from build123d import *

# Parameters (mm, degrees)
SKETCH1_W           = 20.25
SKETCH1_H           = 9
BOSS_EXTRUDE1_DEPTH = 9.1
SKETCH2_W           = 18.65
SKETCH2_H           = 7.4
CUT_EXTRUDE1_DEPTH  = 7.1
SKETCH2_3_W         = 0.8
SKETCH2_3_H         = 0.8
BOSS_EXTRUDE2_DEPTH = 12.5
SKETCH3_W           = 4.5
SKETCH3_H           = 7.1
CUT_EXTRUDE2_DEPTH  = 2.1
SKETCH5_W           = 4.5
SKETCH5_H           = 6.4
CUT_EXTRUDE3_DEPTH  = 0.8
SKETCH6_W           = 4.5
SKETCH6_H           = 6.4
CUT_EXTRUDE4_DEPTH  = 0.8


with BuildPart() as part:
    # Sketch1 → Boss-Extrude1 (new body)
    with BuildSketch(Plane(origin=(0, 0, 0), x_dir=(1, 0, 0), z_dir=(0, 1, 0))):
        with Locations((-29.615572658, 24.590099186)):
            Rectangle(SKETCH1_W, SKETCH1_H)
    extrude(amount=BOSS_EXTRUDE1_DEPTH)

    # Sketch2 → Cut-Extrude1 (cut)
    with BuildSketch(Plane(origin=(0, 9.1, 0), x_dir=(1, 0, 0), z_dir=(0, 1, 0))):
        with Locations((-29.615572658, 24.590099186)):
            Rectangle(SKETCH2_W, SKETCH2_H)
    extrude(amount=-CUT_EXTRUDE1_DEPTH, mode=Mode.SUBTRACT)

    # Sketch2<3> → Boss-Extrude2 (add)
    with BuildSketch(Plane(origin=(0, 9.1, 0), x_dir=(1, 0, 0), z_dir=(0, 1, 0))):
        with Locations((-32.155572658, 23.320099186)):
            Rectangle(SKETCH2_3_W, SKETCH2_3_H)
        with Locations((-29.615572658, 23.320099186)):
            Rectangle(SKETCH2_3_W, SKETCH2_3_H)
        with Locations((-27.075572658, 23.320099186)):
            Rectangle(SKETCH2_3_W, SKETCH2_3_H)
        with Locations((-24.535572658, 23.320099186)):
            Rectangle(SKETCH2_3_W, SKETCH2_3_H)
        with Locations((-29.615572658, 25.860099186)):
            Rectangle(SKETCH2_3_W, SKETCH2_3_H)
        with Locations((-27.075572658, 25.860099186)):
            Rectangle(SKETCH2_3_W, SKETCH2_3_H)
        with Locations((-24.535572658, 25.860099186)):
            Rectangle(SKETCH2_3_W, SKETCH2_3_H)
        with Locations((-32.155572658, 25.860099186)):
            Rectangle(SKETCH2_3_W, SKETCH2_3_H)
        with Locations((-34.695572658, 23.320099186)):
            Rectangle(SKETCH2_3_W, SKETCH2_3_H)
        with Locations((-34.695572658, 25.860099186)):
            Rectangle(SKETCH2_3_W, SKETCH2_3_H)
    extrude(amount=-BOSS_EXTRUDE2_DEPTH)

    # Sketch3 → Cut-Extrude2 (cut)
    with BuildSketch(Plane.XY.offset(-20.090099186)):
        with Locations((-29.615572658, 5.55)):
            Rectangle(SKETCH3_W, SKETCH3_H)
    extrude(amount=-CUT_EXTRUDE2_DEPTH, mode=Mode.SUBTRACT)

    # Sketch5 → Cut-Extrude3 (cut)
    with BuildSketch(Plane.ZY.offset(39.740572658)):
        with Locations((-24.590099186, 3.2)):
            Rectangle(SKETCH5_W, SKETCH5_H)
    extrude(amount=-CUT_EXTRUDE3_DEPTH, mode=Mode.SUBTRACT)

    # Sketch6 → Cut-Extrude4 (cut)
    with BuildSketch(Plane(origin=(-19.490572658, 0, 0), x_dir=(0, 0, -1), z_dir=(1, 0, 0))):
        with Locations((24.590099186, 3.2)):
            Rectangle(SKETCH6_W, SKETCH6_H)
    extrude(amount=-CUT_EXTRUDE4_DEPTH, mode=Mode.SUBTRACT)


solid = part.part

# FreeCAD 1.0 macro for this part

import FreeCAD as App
import Part
import Sketcher
from FreeCAD import Vector
Q = App.Units.Quantity


def add_polygon(sketch, points):
    """Adds a closed chain of lines whose ends are joined by coincident constraints."""
    first, n = sketch.GeometryCount, len(points)
    for a, b in zip(points, points[1:] + points[:1]):
        sketch.addGeometry(Part.LineSegment(App.Vector(*a, 0), App.Vector(*b, 0)), False)
    for i in range(n):
        sketch.addConstraint(Sketcher.Constraint("Coincident", first + i, 2, first + (i + 1) % n, 1))

doc = App.newDocument("Part")
body = doc.addObject("PartDesign::Body", "Body")

# Sketch on XZ plane
sketch1 = doc.addObject("Sketcher::SketchObject", "Sketch")
body.addObject(sketch1)
sketch1.AttachmentSupport = (doc.XZ_Plane, [""])
sketch1.MapMode = "FlatFace"
add_polygon(sketch1, [(-40, -29), (-40, -20), (-19, -20), (-19, -29)])  # lines 0-3
sketch1.addConstraint([
    Sketcher.Constraint("Vertical", 0),
    Sketcher.Constraint("Horizontal", 1),
    Sketcher.Constraint("Vertical", 2),
    Sketcher.Constraint("Horizontal", 3),
    Sketcher.Constraint("DistanceY", 0, 1, 0, 2, Q("9 mm")),
    Sketcher.Constraint("DistanceX", 1, 1, 1, 2, Q("20.25 mm")),
    Sketcher.Constraint("DistanceY", 0, 2, -1, 1, Q("20.090099 mm")),
    Sketcher.Constraint("DistanceX", 0, 2, -1, 1, Q("39.740573 mm")),
])
pad1 = doc.addObject("PartDesign::Pad", "Pad")
body.addObject(pad1)
pad1.Profile = sketch1
pad1.Length = 9.1
pad1.Reversed = True

# Sketch on XZ plane
sketch2 = doc.addObject("Sketcher::SketchObject", "Sketch001")
body.addObject(sketch2)
sketch2.AttachmentSupport = (doc.XZ_Plane, [""])
sketch2.MapMode = "FlatFace"
sketch2.AttachmentOffset = App.Placement(Vector(0, 0, -9.1), App.Rotation())
add_polygon(sketch2, [(-39, -28), (-39, -21), (-20, -21), (-20, -28)])  # lines 0-3
sketch2.addConstraint([
    Sketcher.Constraint("Vertical", 0),
    Sketcher.Constraint("Horizontal", 1),
    Sketcher.Constraint("Vertical", 2),
    Sketcher.Constraint("Horizontal", 3),
    Sketcher.Constraint("DistanceY", 0, 1, 0, 2, Q("7.4 mm")),
    Sketcher.Constraint("DistanceX", 1, 1, 1, 2, Q("18.65 mm")),
    Sketcher.Constraint("DistanceY", 0, 2, -1, 1, Q("20.890099 mm")),
    Sketcher.Constraint("DistanceX", 0, 2, -1, 1, Q("38.940573 mm")),
])
pocket1 = doc.addObject("PartDesign::Pocket", "Pocket")
body.addObject(pocket1)
pocket1.Profile = sketch2
pocket1.Length = 7.1
pocket1.Reversed = True

# Sketch on XZ plane
sketch3 = doc.addObject("Sketcher::SketchObject", "Sketch002")
body.addObject(sketch3)
sketch3.AttachmentSupport = (doc.XZ_Plane, [""])
sketch3.MapMode = "FlatFace"
sketch3.AttachmentOffset = App.Placement(Vector(0, 0, -9.1), App.Rotation())
add_polygon(sketch3, [(-32.6, -23.7), (-32.6, -22.9), (-31.8, -22.9), (-31.8, -23.7)])  # lines 0-3
add_polygon(sketch3, [(-30, -23.7), (-30, -22.9), (-29.2, -22.9), (-29.2, -23.7)])  # lines 4-7
add_polygon(sketch3, [(-27.5, -23.7), (-27.5, -22.9), (-26.7, -22.9), (-26.7, -23.7)])  # lines 8-11
add_polygon(sketch3, [(-24.9, -23.7), (-24.9, -22.9), (-24.1, -22.9), (-24.1, -23.7)])  # lines 12-15
add_polygon(sketch3, [(-30, -26.3), (-30, -25.5), (-29.2, -25.5), (-29.2, -26.3)])  # lines 16-19
add_polygon(sketch3, [(-27.5, -26.3), (-27.5, -25.5), (-26.7, -25.5), (-26.7, -26.3)])  # lines 20-23
add_polygon(sketch3, [(-24.9, -26.3), (-24.9, -25.5), (-24.1, -25.5), (-24.1, -26.3)])  # lines 24-27
add_polygon(sketch3, [(-32.6, -26.3), (-32.6, -25.5), (-31.8, -25.5), (-31.8, -26.3)])  # lines 28-31
add_polygon(sketch3, [(-35.1, -23.7), (-35.1, -22.9), (-34.3, -22.9), (-34.3, -23.7)])  # lines 32-35
add_polygon(sketch3, [(-35.1, -26.3), (-35.1, -25.5), (-34.3, -25.5), (-34.3, -26.3)])  # lines 36-39
sketch3.addConstraint([
    Sketcher.Constraint("Vertical", 0),
    Sketcher.Constraint("Horizontal", 1),
    Sketcher.Constraint("Vertical", 2),
    Sketcher.Constraint("Horizontal", 3),
    Sketcher.Constraint("Vertical", 4),
    Sketcher.Constraint("Horizontal", 5),
    Sketcher.Constraint("Vertical", 6),
    Sketcher.Constraint("Horizontal", 7),
    Sketcher.Constraint("Vertical", 8),
    Sketcher.Constraint("Horizontal", 9),
    Sketcher.Constraint("Vertical", 10),
    Sketcher.Constraint("Horizontal", 11),
    Sketcher.Constraint("Vertical", 12),
    Sketcher.Constraint("Horizontal", 13),
    Sketcher.Constraint("Vertical", 14),
    Sketcher.Constraint("Horizontal", 15),
    Sketcher.Constraint("Vertical", 16),
    Sketcher.Constraint("Horizontal", 17),
    Sketcher.Constraint("Vertical", 18),
    Sketcher.Constraint("Horizontal", 19),
    Sketcher.Constraint("Vertical", 20),
    Sketcher.Constraint("Horizontal", 21),
    Sketcher.Constraint("Vertical", 22),
    Sketcher.Constraint("Horizontal", 23),
    Sketcher.Constraint("Vertical", 24),
    Sketcher.Constraint("Horizontal", 25),
    Sketcher.Constraint("Vertical", 26),
    Sketcher.Constraint("Horizontal", 27),
    Sketcher.Constraint("Vertical", 28),
    Sketcher.Constraint("Horizontal", 29),
    Sketcher.Constraint("Vertical", 30),
    Sketcher.Constraint("Horizontal", 31),
    Sketcher.Constraint("Vertical", 32),
    Sketcher.Constraint("Horizontal", 33),
    Sketcher.Constraint("Vertical", 34),
    Sketcher.Constraint("Horizontal", 35),
    Sketcher.Constraint("Vertical", 36),
    Sketcher.Constraint("Horizontal", 37),
    Sketcher.Constraint("Vertical", 38),
    Sketcher.Constraint("Horizontal", 39),
    Sketcher.Constraint("Horizontal", 1, 2, 4, 2),
    Sketcher.Constraint("Horizontal", 3, 2, 6, 2),
    Sketcher.Constraint("Horizontal", 5, 2, 8, 2),
    Sketcher.Constraint("Horizontal", 7, 2, 10, 2),
    Sketcher.Constraint("Horizontal", 9, 2, 12, 2),
    Sketcher.Constraint("Horizontal", 11, 2, 14, 2),
    Sketcher.Constraint("Horizontal", 17, 2, 20, 2),
    Sketcher.Constraint("Horizontal", 19, 2, 22, 2),
    Sketcher.Constraint("Horizontal", 21, 2, 24, 2),
    Sketcher.Constraint("Horizontal", 23, 2, 26, 2),
    Sketcher.Constraint("Horizontal", 25, 2, 28, 2),
    Sketcher.Constraint("Horizontal", 27, 2, 30, 2),
    Sketcher.Constraint("Horizontal", 13, 2, 32, 2),
    Sketcher.Constraint("Horizontal", 15, 2, 34, 2),
    Sketcher.Constraint("Horizontal", 29, 2, 36, 2),
    Sketcher.Constraint("Horizontal", 31, 2, 38, 2),
    Sketcher.Constraint("Vertical", 7, 2, 16, 2),
    Sketcher.Constraint("Vertical", 6, 2, 17, 2),
    Sketcher.Constraint("Vertical", 11, 2, 20, 2),
    Sketcher.Constraint("Vertical", 10, 2, 21, 2),
    Sketcher.Constraint("Vertical", 15, 2, 24, 2),
    Sketcher.Constraint("Vertical", 14, 2, 25, 2),
    Sketcher.Constraint("Vertical", 3, 2, 28, 2),
    Sketcher.Constraint("Vertical", 2, 2, 29, 2),
    Sketcher.Constraint("Vertical", 35, 2, 36, 2),
    Sketcher.Constraint("Vertical", 34, 2, 37, 2),
    Sketcher.Constraint("Equal", 3, 5),
    Sketcher.Constraint("Equal", 7, 9),
    Sketcher.Constraint("Equal", 11, 13),
    Sketcher.Constraint("Equal", 31, 33),
    Sketcher.Constraint("Equal", 39, 0),
    Sketcher.Constraint("Equal", 14, 16),
    Sketcher.Constraint("DistanceX", 1, 1, 1, 2, Q("0.8 mm")),
    Sketcher.Constraint("DistanceX", 1, 2, 4, 2, Q("1.74 mm")),
    Sketcher.Constraint("DistanceX", 5, 2, 8, 2, Q("1.74 mm")),
    Sketcher.Constraint("DistanceX", 9, 2, 12, 2, Q("1.74 mm")),
    Sketcher.Constraint("DistanceY", 16, 2, 7, 2, Q("1.74 mm")),
    Sketcher.Constraint("DistanceX", 32, 2, 0, 2, Q("2.54 mm")),
    Sketcher.Constraint("DistanceY", 0, 2, -1, 1, Q("22.920099 mm")),
    Sketcher.Constraint("DistanceX", 0, 2, -1, 1, Q("32.555573 mm")),
])
pad2 = doc.addObject("PartDesign::Pad", "Pad001")
body.addObject(pad2)
pad2.Profile = sketch3
pad2.Length = 12.5

# Sketch on XY plane
sketch4 = doc.addObject("Sketcher::SketchObject", "Sketch003")
body.addObject(sketch4)
sketch4.AttachmentSupport = (doc.XY_Plane, [""])
sketch4.MapMode = "FlatFace"
sketch4.AttachmentOffset = App.Placement(Vector(0, 0, -20.090099), App.Rotation())
add_polygon(sketch4, [(-31.9, 9.1), (-31.9, 2), (-27.4, 2), (-27.4, 9.1)])  # lines 0-3
sketch4.addConstraint([
    Sketcher.Constraint("Vertical", 0),
    Sketcher.Constraint("Horizontal", 1),
    Sketcher.Constraint("Vertical", 2),
    Sketcher.Constraint("Horizontal", 3),
    Sketcher.Constraint("DistanceX", 1, 1, 1, 2, Q("4.5 mm")),
    Sketcher.Constraint("DistanceY", 0, 2, 0, 1, Q("7.1 mm")),
    Sketcher.Constraint("DistanceY", -1, 1, 0, 2, Q("2 mm")),
    Sketcher.Constraint("DistanceX", 0, 2, -1, 1, Q("31.865573 mm")),
])
pocket2 = doc.addObject("PartDesign::Pocket", "Pocket001")
body.addObject(pocket2)
pocket2.Profile = sketch4
pocket2.Length = 2.1

# Sketch on YZ plane
sketch5 = doc.addObject("Sketcher::SketchObject", "Sketch004")
body.addObject(sketch5)
sketch5.AttachmentSupport = (doc.YZ_Plane, [""])
sketch5.MapMode = "FlatFace"
sketch5.AttachmentOffset = App.Placement(Vector(0, 0, -39.740573), App.Rotation())
add_polygon(sketch5, [(6.4, -26.8), (0, -26.8), (0, -22.3), (6.4, -22.3)])  # lines 0-3
sketch5.addConstraint([
    Sketcher.Constraint("Horizontal", 0),
    Sketcher.Constraint("Vertical", 1),
    Sketcher.Constraint("Horizontal", 2),
    Sketcher.Constraint("Vertical", 3),
    Sketcher.Constraint("PointOnObject", 0, 2, -2),
    Sketcher.Constraint("DistanceX", 0, 2, 0, 1, Q("6.4 mm")),
    Sketcher.Constraint("DistanceY", 1, 1, 1, 2, Q("4.5 mm")),
    Sketcher.Constraint("DistanceY", 0, 2, -1, 1, Q("26.840099 mm")),
])
pocket3 = doc.addObject("PartDesign::Pocket", "Pocket002")
body.addObject(pocket3)
pocket3.Profile = sketch5
pocket3.Length = 0.8
pocket3.Reversed = True

# Sketch on YZ plane
sketch6 = doc.addObject("Sketcher::SketchObject", "Sketch005")
body.addObject(sketch6)
sketch6.AttachmentSupport = (doc.YZ_Plane, [""])
sketch6.MapMode = "FlatFace"
sketch6.AttachmentOffset = App.Placement(Vector(0, 0, -19.490573), App.Rotation())
add_polygon(sketch6, [(6.4, -22.3), (0, -22.3), (0, -26.8), (6.4, -26.8)])  # lines 0-3
sketch6.addConstraint([
    Sketcher.Constraint("Horizontal", 0),
    Sketcher.Constraint("Vertical", 1),
    Sketcher.Constraint("Horizontal", 2),
    Sketcher.Constraint("Vertical", 3),
    Sketcher.Constraint("PointOnObject", 0, 2, -2),
    Sketcher.Constraint("DistanceX", 0, 2, 0, 1, Q("6.4 mm")),
    Sketcher.Constraint("DistanceY", 1, 2, 1, 1, Q("4.5 mm")),
    Sketcher.Constraint("DistanceY", 0, 2, -1, 1, Q("22.340099 mm")),
])
pocket4 = doc.addObject("PartDesign::Pocket", "Pocket003")
body.addObject(pocket4)
pocket4.Profile = sketch6
pocket4.Length = 0.8

doc.recompute()
